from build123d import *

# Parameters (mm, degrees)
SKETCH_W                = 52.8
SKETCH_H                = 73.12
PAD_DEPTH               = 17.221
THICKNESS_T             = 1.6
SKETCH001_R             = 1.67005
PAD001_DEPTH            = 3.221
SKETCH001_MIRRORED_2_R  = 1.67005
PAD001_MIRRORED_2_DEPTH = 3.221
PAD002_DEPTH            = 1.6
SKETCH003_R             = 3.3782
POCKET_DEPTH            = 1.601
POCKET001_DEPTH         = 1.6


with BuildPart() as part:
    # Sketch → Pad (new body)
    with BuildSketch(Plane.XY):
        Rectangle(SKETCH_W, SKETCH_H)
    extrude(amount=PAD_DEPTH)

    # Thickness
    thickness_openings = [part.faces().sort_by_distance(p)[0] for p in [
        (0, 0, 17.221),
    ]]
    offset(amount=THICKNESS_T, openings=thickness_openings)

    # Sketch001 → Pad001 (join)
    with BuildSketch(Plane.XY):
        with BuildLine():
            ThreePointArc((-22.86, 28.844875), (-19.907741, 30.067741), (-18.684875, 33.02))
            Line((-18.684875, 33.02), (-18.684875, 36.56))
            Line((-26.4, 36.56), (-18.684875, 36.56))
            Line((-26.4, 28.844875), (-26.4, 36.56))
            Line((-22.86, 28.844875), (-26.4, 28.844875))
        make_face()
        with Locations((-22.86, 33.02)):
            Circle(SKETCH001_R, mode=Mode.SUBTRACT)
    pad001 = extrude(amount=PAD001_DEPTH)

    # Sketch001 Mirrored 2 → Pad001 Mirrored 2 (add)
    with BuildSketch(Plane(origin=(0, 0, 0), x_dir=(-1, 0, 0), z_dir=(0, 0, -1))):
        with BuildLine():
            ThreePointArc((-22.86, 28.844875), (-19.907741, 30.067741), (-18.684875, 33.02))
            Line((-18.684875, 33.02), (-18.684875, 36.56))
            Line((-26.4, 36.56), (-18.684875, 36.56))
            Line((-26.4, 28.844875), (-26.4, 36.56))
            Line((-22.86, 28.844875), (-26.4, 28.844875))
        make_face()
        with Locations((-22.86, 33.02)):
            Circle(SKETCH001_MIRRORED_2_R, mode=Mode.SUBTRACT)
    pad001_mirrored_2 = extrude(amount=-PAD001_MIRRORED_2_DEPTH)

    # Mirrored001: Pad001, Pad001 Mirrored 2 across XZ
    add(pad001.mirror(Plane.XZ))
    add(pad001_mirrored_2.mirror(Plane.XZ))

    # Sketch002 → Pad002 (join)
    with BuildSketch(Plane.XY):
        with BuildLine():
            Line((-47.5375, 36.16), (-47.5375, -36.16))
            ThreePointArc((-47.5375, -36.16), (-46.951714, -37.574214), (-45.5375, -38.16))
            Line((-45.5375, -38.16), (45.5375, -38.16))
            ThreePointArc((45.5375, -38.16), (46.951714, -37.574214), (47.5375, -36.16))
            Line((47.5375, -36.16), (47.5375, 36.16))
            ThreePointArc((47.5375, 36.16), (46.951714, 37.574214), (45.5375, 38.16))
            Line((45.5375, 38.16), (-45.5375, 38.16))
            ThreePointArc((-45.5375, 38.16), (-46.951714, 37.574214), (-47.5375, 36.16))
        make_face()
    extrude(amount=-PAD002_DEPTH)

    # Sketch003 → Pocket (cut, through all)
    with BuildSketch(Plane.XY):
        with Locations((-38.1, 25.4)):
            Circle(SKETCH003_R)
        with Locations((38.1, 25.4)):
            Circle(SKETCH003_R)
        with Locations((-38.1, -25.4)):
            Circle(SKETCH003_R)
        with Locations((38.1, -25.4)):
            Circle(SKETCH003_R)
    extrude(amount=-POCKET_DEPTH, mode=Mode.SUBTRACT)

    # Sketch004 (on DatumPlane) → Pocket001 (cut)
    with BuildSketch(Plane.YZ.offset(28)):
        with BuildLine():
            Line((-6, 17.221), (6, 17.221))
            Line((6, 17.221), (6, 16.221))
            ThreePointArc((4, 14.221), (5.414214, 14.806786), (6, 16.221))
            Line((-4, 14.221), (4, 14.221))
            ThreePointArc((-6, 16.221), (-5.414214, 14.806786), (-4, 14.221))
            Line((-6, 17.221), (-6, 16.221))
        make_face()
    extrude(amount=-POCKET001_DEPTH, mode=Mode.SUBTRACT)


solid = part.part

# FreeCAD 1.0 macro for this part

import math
import FreeCAD as App
import Part
import Sketcher
from FreeCAD import Vector


def faces_at(feature, points):
    """Names of the faces that lie closest to the given points."""
    faces = feature.Shape.Faces
    near = lambda p: min(range(len(faces)), key=lambda i: faces[i].distToShape(Part.Vertex(*p))[0])
    return sorted({f"Face{near(p) + 1}" for p in points})

doc = App.newDocument("Part")
params = doc.addObject("Spreadsheet::Sheet", "Params")
for row, (alias, value) in enumerate([
    ("sketch1_width", "52.8 mm"),
    ("sketch1_height", "73.12 mm"),
    ("pad1_length", "17.221 mm"),
    ("thickness_wall", "1.6 mm"),
    ("sketch2_width", "3.54 mm"),
    ("pad2_length", "3.221 mm"),
    ("sketch3_width", "3.54 mm"),
    ("pad3_length", "3.221 mm"),
    ("sketch4_radius", "1.999999 mm"),
    ("sketch4_height", "72.32 mm"),
    ("pad4_length", "1.6 mm"),
    ("sketch6_radius", "1.999999 mm"),
    ("sketch6_width", "12 mm"),
    ("sketch6_height", "1 mm"),
    ("pocket2_length", "1.6 mm"),
], start=1):
    params.set(f"A{row}", alias)
    params.set(f"B{row}", "=" + value)
    params.setAlias(f"B{row}", alias)

body = doc.addObject("PartDesign::Body", "Body")

sketch1 = body.newObject("Sketcher::SketchObject", "Sketch")
sketch1.AttachmentSupport = (doc.getObject("XY_Plane"), [""])
sketch1.MapMode = "FlatFace"
sketch1.addGeometry(Part.LineSegment(Vector(-26, 37, 0), Vector(-26, -37, 0)), False)
sketch1.addGeometry(Part.LineSegment(Vector(-26, -37, 0), Vector(26, -37, 0)), False)
sketch1.addGeometry(Part.LineSegment(Vector(26, -37, 0), Vector(26, 37, 0)), False)
sketch1.addGeometry(Part.LineSegment(Vector(26, 37, 0), Vector(-26, 37, 0)), False)
sketch1.addConstraint(Sketcher.Constraint("Coincident", 0, 2, 1, 1))
sketch1.addConstraint(Sketcher.Constraint("Coincident", 1, 2, 2, 1))
sketch1.addConstraint(Sketcher.Constraint("Coincident", 2, 2, 3, 1))
sketch1.addConstraint(Sketcher.Constraint("Coincident", 3, 2, 0, 1))
sketch1.addConstraint(Sketcher.Constraint("Vertical", 0))
sketch1.addConstraint(Sketcher.Constraint("Horizontal", 1))
sketch1.addConstraint(Sketcher.Constraint("Vertical", 2))
sketch1.addConstraint(Sketcher.Constraint("Horizontal", 3))
sketch1.addConstraint(Sketcher.Constraint("Symmetric", 0, 2, 2, 2, -1, 1))
sketch1.addConstraint(Sketcher.Constraint("DistanceX", 1, 1, 1, 2, 52.8))
sketch1.addConstraint(Sketcher.Constraint("DistanceY", 0, 2, 0, 1, 73.12))
sketch1.setExpression("Constraints[9]", "Params.sketch1_width")
sketch1.setExpression("Constraints[10]", "Params.sketch1_height")
pad1 = body.newObject("PartDesign::Pad", "Pad")
pad1.Profile = sketch1
pad1.setExpression("Length", "Params.pad1_length")
doc.recompute()

thickness = body.newObject("PartDesign::Thickness", "Thickness")
thickness.Base = (pad1, faces_at(pad1, [(0, 0, 17.221)]))
thickness.setExpression("Value", "Params.thickness_wall")
thickness.Reversed = False
thickness.Join = "Arc"

sketch2 = body.newObject("Sketcher::SketchObject", "Sketch001")
sketch2.AttachmentSupport = (doc.getObject("XY_Plane"), [""])
sketch2.MapMode = "FlatFace"
sketch2.addGeometry(Part.ArcOfCircle(Part.Circle(Vector(-22.9, 33, 0), Vector(0, 0, 1), 4.2), math.radians(-90), math.radians(0)), False)
sketch2.addGeometry(Part.LineSegment(Vector(-18.7, 33, 0), Vector(-18.7, 36.6, 0)), False)
sketch2.addGeometry(Part.LineSegment(Vector(-18.7, 36.6, 0), Vector(-26.4, 36.6, 0)), False)
sketch2.addGeometry(Part.LineSegment(Vector(-26.4, 36.6, 0), Vector(-26.4, 28.8, 0)), False)
sketch2.addGeometry(Part.LineSegment(Vector(-26.4, 28.8, 0), Vector(-22.9, 28.8, 0)), False)
sketch2.addGeometry(Part.Circle(Vector(-22.9, 33, 0), Vector(0, 0, 1), 1.7), False)
sketch2.addConstraint(Sketcher.Constraint("Tangent", 0, 2, 1, 1))
sketch2.addConstraint(Sketcher.Constraint("Coincident", 1, 2, 2, 1))
sketch2.addConstraint(Sketcher.Constraint("Coincident", 2, 2, 3, 1))
sketch2.addConstraint(Sketcher.Constraint("Coincident", 3, 2, 4, 1))
sketch2.addConstraint(Sketcher.Constraint("Tangent", 4, 2, 0, 1))
sketch2.addConstraint(Sketcher.Constraint("Vertical", 1))
sketch2.addConstraint(Sketcher.Constraint("Horizontal", 2))
sketch2.addConstraint(Sketcher.Constraint("Vertical", 3))
sketch2.addConstraint(Sketcher.Constraint("Horizontal", 4))
sketch2.addConstraint(Sketcher.Constraint("Coincident", 5, 3, 0, 3))
sketch2.addConstraint(Sketcher.Constraint("Equal", 4, 1))
sketch2.addConstraint(Sketcher.Constraint("Diameter", 5, 3.3401))
sketch2.addConstraint(Sketcher.Constraint("DistanceX", 4, 1, 4, 2, 3.54))
sketch2.addConstraint(Sketcher.Constraint("DistanceX", 2, 2, -1, 1, 26.4))
sketch2.addConstraint(Sketcher.Constraint("DistanceY", -1, 1, 0, 3, 33.020001))
sketch2.addConstraint(Sketcher.Constraint("Radius", 0, 4.175126))
sketch2.setExpression("Constraints[12]", "Params.sketch2_width")
pad2 = body.newObject("PartDesign::Pad", "Pad001")
pad2.Profile = sketch2
pad2.setExpression("Length", "Params.pad2_length")

sketch3 = body.newObject("Sketcher::SketchObject", "Sketch002")
sketch3.AttachmentSupport = (doc.getObject("XY_Plane"), [""])
sketch3.MapMode = "FlatFace"
sketch3.addGeometry(Part.ArcOfCircle(Part.Circle(Vector(22.9, 33, 0), Vector(0, 0, 1), 4.2), math.radians(-180), math.radians(-90)), False)
sketch3.addGeometry(Part.LineSegment(Vector(18.7, 33, 0), Vector(18.7, 36.6, 0)), False)
sketch3.addGeometry(Part.LineSegment(Vector(18.7, 36.6, 0), Vector(26.4, 36.6, 0)), False)
sketch3.addGeometry(Part.LineSegment(Vector(26.4, 36.6, 0), Vector(26.4, 28.8, 0)), False)
sketch3.addGeometry(Part.LineSegment(Vector(26.4, 28.8, 0), Vector(22.9, 28.8, 0)), False)
sketch3.addGeometry(Part.Circle(Vector(22.9, 33, 0), Vector(0, 0, 1), 1.7), False)
sketch3.addConstraint(Sketcher.Constraint("Tangent", 0, 1, 1, 1))
sketch3.addConstraint(Sketcher.Constraint("Coincident", 1, 2, 2, 1))
sketch3.addConstraint(Sketcher.Constraint("Coincident", 2, 2, 3, 1))
sketch3.addConstraint(Sketcher.Constraint("Coincident", 3, 2, 4, 1))
sketch3.addConstraint(Sketcher.Constraint("Tangent", 4, 2, 0, 2))
sketch3.addConstraint(Sketcher.Constraint("Vertical", 1))
sketch3.addConstraint(Sketcher.Constraint("Horizontal", 2))
sketch3.addConstraint(Sketcher.Constraint("Vertical", 3))
sketch3.addConstraint(Sketcher.Constraint("Horizontal", 4))
sketch3.addConstraint(Sketcher.Constraint("Coincident", 5, 3, 0, 3))
sketch3.addConstraint(Sketcher.Constraint("Equal", 4, 1))
sketch3.addConstraint(Sketcher.Constraint("Diameter", 5, 3.3401))
sketch3.addConstraint(Sketcher.Constraint("DistanceX", 4, 2, 4, 1, 3.54))
sketch3.addConstraint(Sketcher.Constraint("DistanceX", -1, 1, 2, 2, 26.4))
sketch3.addConstraint(Sketcher.Constraint("DistanceY", -1, 1, 0, 3, 33.020001))
sketch3.addConstraint(Sketcher.Constraint("Radius", 0, 4.175126))
sketch3.setExpression("Constraints[12]", "Params.sketch3_width")
pad3 = body.newObject("PartDesign::Pad", "Pad002")
pad3.Profile = sketch3
pad3.setExpression("Length", "Params.pad3_length")
doc.recompute()

mirrored = body.newObject("PartDesign::Mirrored", "Mirrored")
mirrored.Originals = [pad2, pad3]
mirrored.MirrorPlane = (doc.getObject("XZ_Plane"), [""])
body.Tip = mirrored

sketch4 = body.newObject("Sketcher::SketchObject", "Sketch003")
sketch4.AttachmentSupport = (doc.getObject("XY_Plane"), [""])
sketch4.MapMode = "FlatFace"
sketch4.addGeometry(Part.LineSegment(Vector(-47.5, 36.2, 0), Vector(-47.5, -36.2, 0)), False)
sketch4.addGeometry(Part.ArcOfCircle(Part.Circle(Vector(-45.5, -36.2, 0), Vector(0, 0, 1), 2), math.radians(180), math.radians(270)), False)
sketch4.addGeometry(Part.LineSegment(Vector(-45.5, -38.2, 0), Vector(45.5, -38.2, 0)), False)
sketch4.addGeometry(Part.ArcOfCircle(Part.Circle(Vector(45.5, -36.2, 0), Vector(0, 0, 1), 2), math.radians(-90), math.radians(0)), False)
sketch4.addGeometry(Part.LineSegment(Vector(47.5, -36.2, 0), Vector(47.5, 36.2, 0)), False)
sketch4.addGeometry(Part.ArcOfCircle(Part.Circle(Vector(45.5, 36.2, 0), Vector(0, 0, 1), 2), math.radians(0), math.radians(90)), False)
sketch4.addGeometry(Part.LineSegment(Vector(45.5, 38.2, 0), Vector(-45.5, 38.2, 0)), False)
sketch4.addGeometry(Part.ArcOfCircle(Part.Circle(Vector(-45.5, 36.2, 0), Vector(0, 0, 1), 2), math.radians(90), math.radians(180)), False)
sketch4.addConstraint(Sketcher.Constraint("Tangent", 0, 2, 1, 1))
sketch4.addConstraint(Sketcher.Constraint("Tangent", 1, 2, 2, 1))
sketch4.addConstraint(Sketcher.Constraint("Tangent", 2, 2, 3, 1))
sketch4.addConstraint(Sketcher.Constraint("Tangent", 3, 2, 4, 1))
sketch4.addConstraint(Sketcher.Constraint("Tangent", 4, 2, 5, 1))
sketch4.addConstraint(Sketcher.Constraint("Tangent", 5, 2, 6, 1))
sketch4.addConstraint(Sketcher.Constraint("Tangent", 6, 2, 7, 1))
sketch4.addConstraint(Sketcher.Constraint("Tangent", 7, 2, 0, 1))
sketch4.addConstraint(Sketcher.Constraint("Vertical", 0))
sketch4.addConstraint(Sketcher.Constraint("Horizontal", 2))
sketch4.addConstraint(Sketcher.Constraint("Vertical", 4))
sketch4.addConstraint(Sketcher.Constraint("Horizontal", 6))
sketch4.addConstraint(Sketcher.Constraint("Equal", 1, 3))
sketch4.addConstraint(Sketcher.Constraint("Equal", 3, 5))
sketch4.addConstraint(Sketcher.Constraint("Equal", 5, 7))
sketch4.addConstraint(Sketcher.Constraint("Symmetric", 1, 3, 5, 3, -1, 1))
sketch4.addConstraint(Sketcher.Constraint("Radius", 1, 1.999999))
sketch4.addConstraint(Sketcher.Constraint("DistanceY", 0, 2, 0, 1, 72.32))
sketch4.addConstraint(Sketcher.Constraint("DistanceX", 2, 1, 2, 2, 91.075))
sketch4.setExpression("Constraints[16]", "Params.sketch4_radius")
sketch4.setExpression("Constraints[17]", "Params.sketch4_height")
pad4 = body.newObject("PartDesign::Pad", "Pad003")
pad4.Profile = sketch4
pad4.setExpression("Length", "Params.pad4_length")
pad4.Reversed = True

sketch5 = body.newObject("Sketcher::SketchObject", "Sketch004")
sketch5.AttachmentSupport = (doc.getObject("XY_Plane"), [""])
sketch5.MapMode = "FlatFace"
sketch5.addGeometry(Part.Circle(Vector(-38.1, 25.4, 0), Vector(0, 0, 1), 3.4), False)
sketch5.addGeometry(Part.Circle(Vector(38.1, 25.4, 0), Vector(0, 0, 1), 3.4), False)
sketch5.addGeometry(Part.Circle(Vector(-38.1, -25.4, 0), Vector(0, 0, 1), 3.4), False)
sketch5.addGeometry(Part.Circle(Vector(38.1, -25.4, 0), Vector(0, 0, 1), 3.4), False)
sketch5.addConstraint(Sketcher.Constraint("Equal", 0, 1))
sketch5.addConstraint(Sketcher.Constraint("Equal", 1, 2))
sketch5.addConstraint(Sketcher.Constraint("Equal", 2, 3))
sketch5.addConstraint(Sketcher.Constraint("Symmetric", 1, 3, 2, 3, -1, 1))
sketch5.addConstraint(Sketcher.Constraint("Symmetric", 0, 3, 3, 3, -1, 1))
sketch5.addConstraint(Sketcher.Constraint("Symmetric", 0, 3, 1, 3, -2))
sketch5.addConstraint(Sketcher.Constraint("Diameter", 0, 6.7564))
sketch5.addConstraint(Sketcher.Constraint("DistanceX", 0, 3, -1, 1, 38.1))
sketch5.addConstraint(Sketcher.Constraint("DistanceY", -1, 1, 0, 3, 25.4))
pocket1 = body.newObject("PartDesign::Pocket", "Pocket")
pocket1.Profile = sketch5
pocket1.Type = "ThroughAll"

sketch6 = body.newObject("Sketcher::SketchObject", "Sketch005")
sketch6.AttachmentSupport = (doc.getObject("YZ_Plane"), [""])
sketch6.MapMode = "FlatFace"
sketch6.AttachmentOffset = App.Placement(Vector(0, 0, 28), App.Rotation())
sketch6.addGeometry(Part.LineSegment(Vector(6, 17.2, 0), Vector(-6, 17.2, 0)), False)
sketch6.addGeometry(Part.LineSegment(Vector(-6, 17.2, 0), Vector(-6, 16.2, 0)), False)
sketch6.addGeometry(Part.ArcOfCircle(Part.Circle(Vector(-4, 16.2, 0), Vector(0, 0, 1), 2), math.radians(180), math.radians(270)), False)
sketch6.addGeometry(Part.LineSegment(Vector(-4, 14.2, 0), Vector(4, 14.2, 0)), False)
sketch6.addGeometry(Part.ArcOfCircle(Part.Circle(Vector(4, 16.2, 0), Vector(0, 0, 1), 2), math.radians(-90), math.radians(0)), False)
sketch6.addGeometry(Part.LineSegment(Vector(6, 16.2, 0), Vector(6, 17.2, 0)), False)
sketch6.addConstraint(Sketcher.Constraint("Coincident", 0, 2, 1, 1))
sketch6.addConstraint(Sketcher.Constraint("Tangent", 1, 2, 2, 1))
sketch6.addConstraint(Sketcher.Constraint("Tangent", 2, 2, 3, 1))
sketch6.addConstraint(Sketcher.Constraint("Tangent", 3, 2, 4, 1))
sketch6.addConstraint(Sketcher.Constraint("Tangent", 4, 2, 5, 1))
sketch6.addConstraint(Sketcher.Constraint("Coincident", 5, 2, 0, 1))
sketch6.addConstraint(Sketcher.Constraint("Horizontal", 0))
sketch6.addConstraint(Sketcher.Constraint("Vertical", 1))
sketch6.addConstraint(Sketcher.Constraint("Horizontal", 3))
sketch6.addConstraint(Sketcher.Constraint("Vertical", 5))
sketch6.addConstraint(Sketcher.Constraint("Equal", 2, 4))
sketch6.addConstraint(Sketcher.Constraint("Radius", 2, 1.999999))
sketch6.addConstraint(Sketcher.Constraint("DistanceX", 0, 2, 0, 1, 12.0))
sketch6.addConstraint(Sketcher.Constraint("DistanceY", 1, 2, 1, 1, 1.0))
sketch6.addConstraint(Sketcher.Constraint("DistanceX", 2, 3, -1, 1, 4.000001))
sketch6.addConstraint(Sketcher.Constraint("DistanceY", -1, 1, 2, 3, 16.220999))
sketch6.setExpression("Constraints[11]", "Params.sketch6_radius")
sketch6.setExpression("Constraints[12]", "Params.sketch6_width")
sketch6.setExpression("Constraints[13]", "Params.sketch6_height")
pocket2 = body.newObject("PartDesign::Pocket", "Pocket001")
pocket2.Profile = sketch6
pocket2.setExpression("Length", "Params.pocket2_length")

doc.recompute()
